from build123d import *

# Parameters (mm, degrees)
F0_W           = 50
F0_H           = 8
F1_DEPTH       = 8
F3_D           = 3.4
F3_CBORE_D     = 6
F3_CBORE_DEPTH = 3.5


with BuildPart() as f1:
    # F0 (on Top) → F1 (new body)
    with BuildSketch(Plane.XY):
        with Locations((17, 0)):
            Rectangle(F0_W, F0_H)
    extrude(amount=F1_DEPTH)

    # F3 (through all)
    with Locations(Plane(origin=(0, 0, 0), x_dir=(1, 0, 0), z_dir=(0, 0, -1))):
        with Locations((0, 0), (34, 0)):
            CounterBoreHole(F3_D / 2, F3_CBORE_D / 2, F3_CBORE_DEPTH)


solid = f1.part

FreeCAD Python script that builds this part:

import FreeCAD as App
import Part
import Sketcher

V = App.Vector
Q = App.Units.Quantity

doc = App.newDocument("Part")
body = doc.addObject("PartDesign::Body", "Body")

# Sketch on XY plane
sketch1 = body.newObject("Sketcher::SketchObject", "Sketch")
sketch1.AttachmentSupport = (doc.getObject("XY_Plane"), [""])
sketch1.MapMode = "FlatFace"
sketch1.addGeometry([
    Part.LineSegment(V(-8, 4, 0), V(-8, -4, 0)),
    Part.LineSegment(V(-8, -4, 0), V(42, -4, 0)),
    Part.LineSegment(V(42, -4, 0), V(42, 4, 0)),
    Part.LineSegment(V(42, 4, 0), V(-8, 4, 0)),
], False)
sketch1.addConstraint([
    Sketcher.Constraint("Coincident", 0, 2, 1, 1),
    Sketcher.Constraint("Coincident", 1, 2, 2, 1),
    Sketcher.Constraint("Coincident", 2, 2, 3, 1),
    Sketcher.Constraint("Coincident", 3, 2, 0, 1),
    Sketcher.Constraint("Vertical", 0),
    Sketcher.Constraint("Horizontal", 1),
    Sketcher.Constraint("Vertical", 2),
    Sketcher.Constraint("Horizontal", 3),
    Sketcher.Constraint("DistanceX", 1, 1, 1, 2, Q("50 mm")),
    Sketcher.Constraint("DistanceY", 0, 2, 0, 1, Q("8 mm")),
    Sketcher.Constraint("DistanceX", 0, 2, -1, 1, Q("8 mm")),
    Sketcher.Constraint("DistanceY", 0, 2, -1, 1, Q("4 mm")),
])
pad1 = body.newObject("PartDesign::Pad", "Pad")
pad1.Profile = sketch1
pad1.Length = 8

# Sketch on XY plane
sketch2 = body.newObject("Sketcher::SketchObject", "Sketch001")
sketch2.AttachmentSupport = (doc.getObject("XY_Plane"), [""])
sketch2.MapMode = "FlatFace"
sketch2.addGeometry([
    Part.Circle(V(0, 0, 0), V(0, 0, 1), 1.7),
    Part.Circle(V(34, 0, 0), V(0, 0, 1), 1.7),
], False)
sketch2.addConstraint([
    Sketcher.Constraint("Coincident", 0, 3, -1, 1),
    Sketcher.Constraint("Equal", 0, 1),
    Sketcher.Constraint("PointOnObject", 1, 3, -1),
    Sketcher.Constraint("Diameter", 0, Q("3.4 mm")),
    Sketcher.Constraint("DistanceX", -1, 1, 1, 3, Q("34 mm")),
])
doc.recompute()
hole = body.newObject("PartDesign::Hole", "Hole")
hole.Profile = sketch2
hole.ThreadType = "None"
hole.Diameter = 3.4
hole.DepthType = "ThroughAll"
hole.HoleCutType = "Counterbore"
hole.HoleCutDiameter = 6
hole.HoleCutDepth = 3.5
hole.Reversed = True

doc.recompute()
